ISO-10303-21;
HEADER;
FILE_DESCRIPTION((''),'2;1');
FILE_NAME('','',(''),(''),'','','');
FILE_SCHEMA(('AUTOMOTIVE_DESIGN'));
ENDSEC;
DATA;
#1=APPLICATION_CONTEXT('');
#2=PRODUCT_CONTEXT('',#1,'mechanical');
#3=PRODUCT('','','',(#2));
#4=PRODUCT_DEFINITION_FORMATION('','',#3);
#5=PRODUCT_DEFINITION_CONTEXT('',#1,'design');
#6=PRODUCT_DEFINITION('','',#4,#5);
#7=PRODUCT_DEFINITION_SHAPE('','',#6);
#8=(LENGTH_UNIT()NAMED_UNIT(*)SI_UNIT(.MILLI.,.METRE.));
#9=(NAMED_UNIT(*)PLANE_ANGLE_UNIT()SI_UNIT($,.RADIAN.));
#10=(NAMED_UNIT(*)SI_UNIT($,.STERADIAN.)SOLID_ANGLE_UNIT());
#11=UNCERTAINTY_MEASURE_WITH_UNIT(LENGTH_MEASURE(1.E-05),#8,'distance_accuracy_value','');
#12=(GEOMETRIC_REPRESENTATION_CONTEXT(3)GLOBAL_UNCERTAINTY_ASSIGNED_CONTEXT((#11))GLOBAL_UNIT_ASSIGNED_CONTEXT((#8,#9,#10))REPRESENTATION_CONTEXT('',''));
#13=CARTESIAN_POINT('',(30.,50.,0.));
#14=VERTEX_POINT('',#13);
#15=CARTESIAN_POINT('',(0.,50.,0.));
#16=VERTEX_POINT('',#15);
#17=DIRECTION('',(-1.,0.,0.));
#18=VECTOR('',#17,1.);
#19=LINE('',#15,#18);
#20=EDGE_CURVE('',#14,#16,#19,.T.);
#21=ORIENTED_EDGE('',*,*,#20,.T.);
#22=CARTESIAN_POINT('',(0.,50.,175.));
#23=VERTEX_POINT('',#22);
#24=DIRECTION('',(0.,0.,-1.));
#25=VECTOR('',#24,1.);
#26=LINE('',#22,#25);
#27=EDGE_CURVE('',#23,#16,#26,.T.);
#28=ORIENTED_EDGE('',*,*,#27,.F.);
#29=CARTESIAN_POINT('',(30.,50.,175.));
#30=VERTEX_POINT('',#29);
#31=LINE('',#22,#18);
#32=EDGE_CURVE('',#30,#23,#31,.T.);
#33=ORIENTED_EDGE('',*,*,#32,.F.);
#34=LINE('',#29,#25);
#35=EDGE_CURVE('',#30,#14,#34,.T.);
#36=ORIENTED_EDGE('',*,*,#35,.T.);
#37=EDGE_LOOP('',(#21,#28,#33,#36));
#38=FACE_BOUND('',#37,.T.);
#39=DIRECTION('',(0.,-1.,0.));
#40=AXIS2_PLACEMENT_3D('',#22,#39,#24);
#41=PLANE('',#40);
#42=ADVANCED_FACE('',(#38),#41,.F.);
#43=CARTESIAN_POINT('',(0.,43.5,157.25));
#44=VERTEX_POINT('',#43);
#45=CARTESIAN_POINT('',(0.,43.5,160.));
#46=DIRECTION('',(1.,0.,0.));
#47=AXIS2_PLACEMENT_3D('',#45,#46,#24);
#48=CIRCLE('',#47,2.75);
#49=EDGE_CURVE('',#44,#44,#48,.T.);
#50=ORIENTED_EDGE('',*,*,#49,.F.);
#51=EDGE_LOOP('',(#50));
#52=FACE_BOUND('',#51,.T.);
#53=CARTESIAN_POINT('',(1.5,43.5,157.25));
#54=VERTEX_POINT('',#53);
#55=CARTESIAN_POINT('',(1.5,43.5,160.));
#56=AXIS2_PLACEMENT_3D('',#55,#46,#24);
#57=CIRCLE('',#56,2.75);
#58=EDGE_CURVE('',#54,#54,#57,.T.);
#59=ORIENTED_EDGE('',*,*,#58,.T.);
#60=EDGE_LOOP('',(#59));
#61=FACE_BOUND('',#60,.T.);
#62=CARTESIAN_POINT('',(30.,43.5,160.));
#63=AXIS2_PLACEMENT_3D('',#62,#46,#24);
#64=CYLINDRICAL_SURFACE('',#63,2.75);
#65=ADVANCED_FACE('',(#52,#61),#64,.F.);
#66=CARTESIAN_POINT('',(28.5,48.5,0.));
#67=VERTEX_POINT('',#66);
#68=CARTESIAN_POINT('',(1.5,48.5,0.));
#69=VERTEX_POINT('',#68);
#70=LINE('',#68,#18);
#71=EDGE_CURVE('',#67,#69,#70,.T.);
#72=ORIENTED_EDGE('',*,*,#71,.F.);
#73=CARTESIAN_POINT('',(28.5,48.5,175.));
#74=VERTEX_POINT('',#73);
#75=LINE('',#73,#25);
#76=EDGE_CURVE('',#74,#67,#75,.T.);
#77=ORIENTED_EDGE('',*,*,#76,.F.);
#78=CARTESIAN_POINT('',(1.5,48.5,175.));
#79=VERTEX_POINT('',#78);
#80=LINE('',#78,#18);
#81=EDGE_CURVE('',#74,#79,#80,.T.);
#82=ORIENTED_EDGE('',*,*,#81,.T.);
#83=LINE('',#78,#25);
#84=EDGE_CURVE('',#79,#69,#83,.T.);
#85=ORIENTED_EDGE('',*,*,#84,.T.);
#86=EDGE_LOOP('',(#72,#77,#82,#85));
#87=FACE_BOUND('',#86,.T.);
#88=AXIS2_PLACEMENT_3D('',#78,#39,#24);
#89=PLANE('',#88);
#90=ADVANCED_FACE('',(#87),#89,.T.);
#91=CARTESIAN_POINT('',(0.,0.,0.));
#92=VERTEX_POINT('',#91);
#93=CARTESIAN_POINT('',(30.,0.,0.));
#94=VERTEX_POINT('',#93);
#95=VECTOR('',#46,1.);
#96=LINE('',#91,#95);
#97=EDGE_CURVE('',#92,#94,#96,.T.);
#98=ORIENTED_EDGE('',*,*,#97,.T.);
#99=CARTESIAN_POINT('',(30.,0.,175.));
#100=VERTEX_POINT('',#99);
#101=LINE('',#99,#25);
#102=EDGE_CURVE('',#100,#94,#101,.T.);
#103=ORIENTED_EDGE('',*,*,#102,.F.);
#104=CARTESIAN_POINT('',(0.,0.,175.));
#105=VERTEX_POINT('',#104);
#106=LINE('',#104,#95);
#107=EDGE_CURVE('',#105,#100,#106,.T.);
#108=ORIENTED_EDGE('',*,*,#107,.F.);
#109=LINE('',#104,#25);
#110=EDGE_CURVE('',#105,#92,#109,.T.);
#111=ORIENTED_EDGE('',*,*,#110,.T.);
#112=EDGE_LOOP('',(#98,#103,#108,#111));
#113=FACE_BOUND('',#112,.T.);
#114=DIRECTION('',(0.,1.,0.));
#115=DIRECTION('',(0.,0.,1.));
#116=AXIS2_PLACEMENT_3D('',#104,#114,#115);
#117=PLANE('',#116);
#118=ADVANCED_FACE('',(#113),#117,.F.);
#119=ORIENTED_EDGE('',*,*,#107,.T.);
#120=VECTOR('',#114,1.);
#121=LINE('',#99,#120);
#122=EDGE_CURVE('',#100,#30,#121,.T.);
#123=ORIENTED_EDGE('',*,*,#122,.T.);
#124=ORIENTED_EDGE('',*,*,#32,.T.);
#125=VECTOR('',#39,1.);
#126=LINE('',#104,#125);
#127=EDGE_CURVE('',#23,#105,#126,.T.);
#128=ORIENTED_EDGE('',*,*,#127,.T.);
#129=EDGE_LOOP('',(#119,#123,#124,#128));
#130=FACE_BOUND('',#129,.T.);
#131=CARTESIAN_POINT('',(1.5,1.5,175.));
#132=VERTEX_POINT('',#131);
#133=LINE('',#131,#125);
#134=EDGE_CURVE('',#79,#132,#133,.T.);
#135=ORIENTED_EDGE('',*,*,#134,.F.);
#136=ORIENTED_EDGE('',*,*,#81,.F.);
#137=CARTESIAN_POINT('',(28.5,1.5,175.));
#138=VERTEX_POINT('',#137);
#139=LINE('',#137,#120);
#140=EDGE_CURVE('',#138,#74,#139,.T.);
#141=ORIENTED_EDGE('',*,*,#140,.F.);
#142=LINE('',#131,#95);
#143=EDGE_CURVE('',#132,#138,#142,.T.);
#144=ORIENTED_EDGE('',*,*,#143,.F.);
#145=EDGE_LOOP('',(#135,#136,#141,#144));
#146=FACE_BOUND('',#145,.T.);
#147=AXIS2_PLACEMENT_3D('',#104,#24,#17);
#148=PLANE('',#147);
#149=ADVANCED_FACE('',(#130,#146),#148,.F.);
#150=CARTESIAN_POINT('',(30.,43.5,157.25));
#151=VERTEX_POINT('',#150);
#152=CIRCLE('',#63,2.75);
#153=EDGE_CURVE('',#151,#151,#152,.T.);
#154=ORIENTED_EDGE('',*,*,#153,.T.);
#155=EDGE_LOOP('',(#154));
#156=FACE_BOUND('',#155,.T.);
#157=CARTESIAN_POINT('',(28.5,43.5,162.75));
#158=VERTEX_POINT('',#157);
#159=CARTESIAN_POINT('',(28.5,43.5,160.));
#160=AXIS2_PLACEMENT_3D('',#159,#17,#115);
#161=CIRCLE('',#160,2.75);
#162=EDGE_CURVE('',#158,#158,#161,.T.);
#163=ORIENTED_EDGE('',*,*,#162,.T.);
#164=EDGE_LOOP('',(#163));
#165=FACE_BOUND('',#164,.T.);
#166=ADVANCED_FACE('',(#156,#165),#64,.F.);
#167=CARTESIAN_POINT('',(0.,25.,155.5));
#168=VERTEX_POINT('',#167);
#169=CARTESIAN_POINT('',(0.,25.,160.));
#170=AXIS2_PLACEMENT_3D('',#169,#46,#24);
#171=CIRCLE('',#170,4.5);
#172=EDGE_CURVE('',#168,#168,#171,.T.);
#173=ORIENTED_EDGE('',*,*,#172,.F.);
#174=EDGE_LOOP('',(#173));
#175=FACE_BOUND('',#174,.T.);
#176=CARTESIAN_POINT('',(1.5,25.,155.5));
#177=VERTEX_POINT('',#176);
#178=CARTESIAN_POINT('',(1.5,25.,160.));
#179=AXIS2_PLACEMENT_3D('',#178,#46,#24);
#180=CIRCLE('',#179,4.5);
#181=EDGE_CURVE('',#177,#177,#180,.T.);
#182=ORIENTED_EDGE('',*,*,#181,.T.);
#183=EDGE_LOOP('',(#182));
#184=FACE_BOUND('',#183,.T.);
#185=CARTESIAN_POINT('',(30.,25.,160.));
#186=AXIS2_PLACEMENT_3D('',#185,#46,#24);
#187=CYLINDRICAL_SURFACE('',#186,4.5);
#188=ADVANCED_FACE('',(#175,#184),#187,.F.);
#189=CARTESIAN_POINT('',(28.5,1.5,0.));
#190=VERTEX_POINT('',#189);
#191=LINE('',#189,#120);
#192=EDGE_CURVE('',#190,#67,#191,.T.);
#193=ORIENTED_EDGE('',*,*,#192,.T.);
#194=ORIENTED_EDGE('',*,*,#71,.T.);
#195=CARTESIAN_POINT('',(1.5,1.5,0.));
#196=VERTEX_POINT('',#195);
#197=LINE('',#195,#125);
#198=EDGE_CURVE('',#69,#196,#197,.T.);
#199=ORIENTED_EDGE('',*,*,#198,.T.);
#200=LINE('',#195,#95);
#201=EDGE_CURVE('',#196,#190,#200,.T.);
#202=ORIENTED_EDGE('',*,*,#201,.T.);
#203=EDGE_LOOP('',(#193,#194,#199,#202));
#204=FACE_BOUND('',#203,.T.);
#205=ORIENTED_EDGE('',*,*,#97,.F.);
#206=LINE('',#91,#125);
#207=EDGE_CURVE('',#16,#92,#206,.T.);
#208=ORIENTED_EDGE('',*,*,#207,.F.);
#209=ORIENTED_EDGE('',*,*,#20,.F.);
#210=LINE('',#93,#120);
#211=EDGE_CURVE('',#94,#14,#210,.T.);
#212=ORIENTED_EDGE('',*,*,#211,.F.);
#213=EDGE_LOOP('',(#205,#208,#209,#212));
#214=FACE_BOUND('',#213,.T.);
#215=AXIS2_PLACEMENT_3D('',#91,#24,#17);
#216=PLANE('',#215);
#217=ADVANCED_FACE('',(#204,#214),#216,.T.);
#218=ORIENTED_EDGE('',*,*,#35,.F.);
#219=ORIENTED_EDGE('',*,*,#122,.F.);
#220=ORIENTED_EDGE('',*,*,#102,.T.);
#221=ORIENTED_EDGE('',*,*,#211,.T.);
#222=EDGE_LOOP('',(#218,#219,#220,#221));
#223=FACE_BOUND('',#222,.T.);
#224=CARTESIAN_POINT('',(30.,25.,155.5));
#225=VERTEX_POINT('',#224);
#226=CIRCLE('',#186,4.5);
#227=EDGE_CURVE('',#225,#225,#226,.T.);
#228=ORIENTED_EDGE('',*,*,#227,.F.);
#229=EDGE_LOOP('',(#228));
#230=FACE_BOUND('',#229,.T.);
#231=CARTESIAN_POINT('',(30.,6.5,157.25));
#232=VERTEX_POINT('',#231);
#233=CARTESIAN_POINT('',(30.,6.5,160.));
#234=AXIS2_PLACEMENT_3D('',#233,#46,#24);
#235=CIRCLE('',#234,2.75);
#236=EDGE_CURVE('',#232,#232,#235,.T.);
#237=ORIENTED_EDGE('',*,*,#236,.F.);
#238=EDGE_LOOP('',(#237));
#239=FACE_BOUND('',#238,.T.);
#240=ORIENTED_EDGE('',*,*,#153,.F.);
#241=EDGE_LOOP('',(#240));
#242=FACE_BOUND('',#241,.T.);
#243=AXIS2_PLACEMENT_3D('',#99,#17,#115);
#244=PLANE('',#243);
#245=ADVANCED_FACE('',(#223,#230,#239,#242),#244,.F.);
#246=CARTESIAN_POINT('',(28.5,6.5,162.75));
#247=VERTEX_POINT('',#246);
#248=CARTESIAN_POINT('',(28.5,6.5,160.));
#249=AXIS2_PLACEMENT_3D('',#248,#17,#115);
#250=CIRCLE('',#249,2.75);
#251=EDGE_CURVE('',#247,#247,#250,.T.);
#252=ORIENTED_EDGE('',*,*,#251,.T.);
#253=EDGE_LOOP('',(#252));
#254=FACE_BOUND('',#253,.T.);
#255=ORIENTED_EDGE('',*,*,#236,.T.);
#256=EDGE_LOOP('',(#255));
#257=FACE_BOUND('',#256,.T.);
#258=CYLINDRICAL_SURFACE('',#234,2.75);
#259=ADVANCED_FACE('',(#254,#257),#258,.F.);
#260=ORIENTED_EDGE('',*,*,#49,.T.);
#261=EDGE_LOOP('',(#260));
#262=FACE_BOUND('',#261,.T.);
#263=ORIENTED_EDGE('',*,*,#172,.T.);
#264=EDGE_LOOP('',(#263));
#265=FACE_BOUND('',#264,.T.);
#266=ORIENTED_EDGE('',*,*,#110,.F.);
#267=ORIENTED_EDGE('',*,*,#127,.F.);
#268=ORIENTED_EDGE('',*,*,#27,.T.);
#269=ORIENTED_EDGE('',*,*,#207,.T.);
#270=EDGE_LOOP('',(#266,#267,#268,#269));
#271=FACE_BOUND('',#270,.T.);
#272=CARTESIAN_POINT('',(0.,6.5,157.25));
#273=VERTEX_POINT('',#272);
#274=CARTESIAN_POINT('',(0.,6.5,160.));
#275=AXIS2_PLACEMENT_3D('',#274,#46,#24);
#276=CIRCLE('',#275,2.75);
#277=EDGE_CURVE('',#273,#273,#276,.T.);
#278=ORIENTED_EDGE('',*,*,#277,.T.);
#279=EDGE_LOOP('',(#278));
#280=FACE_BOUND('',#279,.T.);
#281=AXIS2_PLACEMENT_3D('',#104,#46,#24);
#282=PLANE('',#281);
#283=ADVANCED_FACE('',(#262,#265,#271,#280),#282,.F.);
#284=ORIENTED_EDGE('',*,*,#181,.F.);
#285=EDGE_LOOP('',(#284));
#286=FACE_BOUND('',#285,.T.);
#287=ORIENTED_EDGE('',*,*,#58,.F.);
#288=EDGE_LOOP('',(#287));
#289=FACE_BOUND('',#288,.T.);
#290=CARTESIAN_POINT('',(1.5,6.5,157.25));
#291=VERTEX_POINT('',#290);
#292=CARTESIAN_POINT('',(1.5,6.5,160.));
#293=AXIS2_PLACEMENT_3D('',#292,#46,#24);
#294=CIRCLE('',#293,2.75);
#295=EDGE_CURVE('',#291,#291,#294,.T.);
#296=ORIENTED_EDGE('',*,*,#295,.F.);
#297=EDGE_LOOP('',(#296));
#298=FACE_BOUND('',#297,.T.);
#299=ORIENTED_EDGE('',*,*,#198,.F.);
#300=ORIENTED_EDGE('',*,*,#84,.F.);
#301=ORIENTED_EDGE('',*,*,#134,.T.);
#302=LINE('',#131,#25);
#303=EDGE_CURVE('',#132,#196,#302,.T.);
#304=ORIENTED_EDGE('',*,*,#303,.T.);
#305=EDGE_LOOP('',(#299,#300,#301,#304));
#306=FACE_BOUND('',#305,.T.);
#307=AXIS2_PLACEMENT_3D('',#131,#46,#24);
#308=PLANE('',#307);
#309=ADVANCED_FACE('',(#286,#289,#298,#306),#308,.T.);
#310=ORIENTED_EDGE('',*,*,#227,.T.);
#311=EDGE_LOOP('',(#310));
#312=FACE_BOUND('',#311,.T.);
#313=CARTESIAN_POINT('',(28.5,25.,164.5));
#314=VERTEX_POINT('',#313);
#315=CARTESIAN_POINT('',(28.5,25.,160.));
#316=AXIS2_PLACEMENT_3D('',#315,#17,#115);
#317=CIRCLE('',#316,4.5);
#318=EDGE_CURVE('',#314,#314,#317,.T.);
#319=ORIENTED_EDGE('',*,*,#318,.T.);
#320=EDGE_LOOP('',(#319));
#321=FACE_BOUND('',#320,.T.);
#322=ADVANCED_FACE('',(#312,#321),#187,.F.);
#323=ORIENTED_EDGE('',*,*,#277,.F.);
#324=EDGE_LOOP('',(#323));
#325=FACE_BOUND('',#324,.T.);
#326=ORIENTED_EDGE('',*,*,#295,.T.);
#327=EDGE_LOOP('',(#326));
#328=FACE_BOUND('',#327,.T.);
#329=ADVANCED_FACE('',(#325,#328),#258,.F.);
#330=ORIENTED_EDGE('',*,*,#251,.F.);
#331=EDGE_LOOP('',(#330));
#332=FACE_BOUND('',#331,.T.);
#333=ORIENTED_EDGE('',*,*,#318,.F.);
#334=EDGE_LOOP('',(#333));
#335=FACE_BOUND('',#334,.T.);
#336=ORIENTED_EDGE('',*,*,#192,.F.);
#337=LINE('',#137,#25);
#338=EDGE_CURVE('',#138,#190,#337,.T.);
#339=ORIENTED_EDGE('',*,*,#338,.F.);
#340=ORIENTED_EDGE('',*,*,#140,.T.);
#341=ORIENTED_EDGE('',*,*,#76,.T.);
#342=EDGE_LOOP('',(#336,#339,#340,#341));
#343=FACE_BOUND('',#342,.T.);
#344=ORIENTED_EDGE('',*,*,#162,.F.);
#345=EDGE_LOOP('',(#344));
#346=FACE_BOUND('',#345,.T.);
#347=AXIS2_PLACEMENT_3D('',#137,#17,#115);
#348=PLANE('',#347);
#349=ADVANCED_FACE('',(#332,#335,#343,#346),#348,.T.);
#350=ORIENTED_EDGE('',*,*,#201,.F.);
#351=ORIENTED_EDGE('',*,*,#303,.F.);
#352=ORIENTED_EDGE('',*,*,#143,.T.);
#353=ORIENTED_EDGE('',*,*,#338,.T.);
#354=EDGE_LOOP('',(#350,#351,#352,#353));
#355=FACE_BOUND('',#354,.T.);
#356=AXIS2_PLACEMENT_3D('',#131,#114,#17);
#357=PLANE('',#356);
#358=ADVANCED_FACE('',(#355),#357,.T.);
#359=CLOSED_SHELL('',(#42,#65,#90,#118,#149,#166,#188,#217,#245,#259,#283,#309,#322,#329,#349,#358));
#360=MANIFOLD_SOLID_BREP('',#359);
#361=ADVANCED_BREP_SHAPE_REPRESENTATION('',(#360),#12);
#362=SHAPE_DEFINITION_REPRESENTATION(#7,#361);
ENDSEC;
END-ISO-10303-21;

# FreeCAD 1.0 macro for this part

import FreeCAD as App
import Part
import Sketcher

doc = App.newDocument("Part")
body = doc.addObject("PartDesign::Body", "Body")

sketch1 = body.newObject("Sketcher::SketchObject", "Sketch")
sketch1.AttachmentSupport = (doc.getObject("XY_Plane"), [""])
sketch1.MapMode = "FlatFace"
sketch1.addGeometry([
    Part.LineSegment(App.Vector(0, 50, 0), App.Vector(0, 0, 0)),
    Part.LineSegment(App.Vector(0, 0, 0), App.Vector(30, 0, 0)),
    Part.LineSegment(App.Vector(30, 0, 0), App.Vector(30, 50, 0)),
    Part.LineSegment(App.Vector(30, 50, 0), App.Vector(0, 50, 0)),
    Part.LineSegment(App.Vector(28.5, 1.5, 0), App.Vector(1.5, 1.5, 0)),
    Part.LineSegment(App.Vector(1.5, 1.5, 0), App.Vector(1.5, 48.5, 0)),
    Part.LineSegment(App.Vector(1.5, 48.5, 0), App.Vector(28.5, 48.5, 0)),
    Part.LineSegment(App.Vector(28.5, 48.5, 0), App.Vector(28.5, 1.5, 0)),
], False)
sketch1.addConstraint([
    Sketcher.Constraint("Coincident", 0, 2, 1, 1),
    Sketcher.Constraint("Coincident", 1, 2, 2, 1),
    Sketcher.Constraint("Coincident", 2, 2, 3, 1),
    Sketcher.Constraint("Coincident", 3, 2, 0, 1),
    Sketcher.Constraint("Coincident", 4, 2, 5, 1),
    Sketcher.Constraint("Coincident", 5, 2, 6, 1),
    Sketcher.Constraint("Coincident", 6, 2, 7, 1),
    Sketcher.Constraint("Coincident", 7, 2, 4, 1),
    Sketcher.Constraint("Vertical", 0),
    Sketcher.Constraint("Horizontal", 1),
    Sketcher.Constraint("Vertical", 2),
    Sketcher.Constraint("Horizontal", 3),
    Sketcher.Constraint("Horizontal", 4),
    Sketcher.Constraint("Vertical", 5),
    Sketcher.Constraint("Horizontal", 6),
    Sketcher.Constraint("Vertical", 7),
    Sketcher.Constraint("Coincident", 0, 2, -1, 1),
    Sketcher.Constraint("DistanceX", 1, 1, 1, 2, 30.0),
    Sketcher.Constraint("DistanceX", 4, 2, 4, 1, 27.0),
    Sketcher.Constraint("DistanceY", 0, 2, 0, 1, 50.0),
    Sketcher.Constraint("DistanceY", 5, 1, 5, 2, 47.0),
    Sketcher.Constraint("DistanceX", -1, 1, 4, 2, 1.5),
    Sketcher.Constraint("DistanceY", -1, 1, 4, 2, 1.5),
])
pad1 = body.newObject("PartDesign::Pad", "Pad")
pad1.Profile = sketch1
pad1.Length = 175

sketch2 = body.newObject("Sketcher::SketchObject", "Sketch001")
sketch2.AttachmentSupport = (doc.getObject("YZ_Plane"), [""])
sketch2.MapMode = "FlatFace"
sketch2.AttachmentOffset = App.Placement(App.Vector(0, 0, 30), App.Rotation())
sketch2.addGeometry([
    Part.Circle(App.Vector(43.5, 160, 0), App.Vector(0, 0, 1), 2.75),
    Part.Circle(App.Vector(6.5, 160, 0), App.Vector(0, 0, 1), 2.75),
], False)
sketch2.addConstraint([
    Sketcher.Constraint("Equal", 0, 1),
    Sketcher.Constraint("Horizontal", 0, 3, 1, 3),
    Sketcher.Constraint("Diameter", 0, 5.5),
    Sketcher.Constraint("DistanceY", -1, 1, 0, 3, 160.0),
    Sketcher.Constraint("DistanceX", 1, 3, 0, 3, 37.0),
    Sketcher.Constraint("DistanceX", -1, 1, 0, 3, 43.5),
])
doc.recompute()
hole = body.newObject("PartDesign::Hole", "Hole")
hole.Profile = sketch2
hole.ThreadType = "None"
hole.Diameter = 5.5
hole.DepthType = "Dimension"
hole.Depth = 30
hole.DrillPoint = "Angled"
hole.DrillPointAngle = 118

sketch3 = body.newObject("Sketcher::SketchObject", "Sketch002")
sketch3.AttachmentSupport = (doc.getObject("YZ_Plane"), [""])
sketch3.MapMode = "FlatFace"
sketch3.AttachmentOffset = App.Placement(App.Vector(0, 0, 30), App.Rotation())
sketch3.addGeometry(Part.Circle(App.Vector(25, 160, 0), App.Vector(0, 0, 1), 4.5), False)
sketch3.addConstraint([
    Sketcher.Constraint("Diameter", 0, 9.0),
    Sketcher.Constraint("DistanceX", -1, 1, 0, 3, 25.0),
    Sketcher.Constraint("DistanceY", -1, 1, 0, 3, 160.0),
])
doc.recompute()
hole2 = body.newObject("PartDesign::Hole", "Hole001")
hole2.Profile = sketch3
hole2.ThreadType = "None"
hole2.Diameter = 9
hole2.DepthType = "Dimension"
hole2.Depth = 30
hole2.DrillPoint = "Angled"
hole2.DrillPointAngle = 118

doc.recompute()
